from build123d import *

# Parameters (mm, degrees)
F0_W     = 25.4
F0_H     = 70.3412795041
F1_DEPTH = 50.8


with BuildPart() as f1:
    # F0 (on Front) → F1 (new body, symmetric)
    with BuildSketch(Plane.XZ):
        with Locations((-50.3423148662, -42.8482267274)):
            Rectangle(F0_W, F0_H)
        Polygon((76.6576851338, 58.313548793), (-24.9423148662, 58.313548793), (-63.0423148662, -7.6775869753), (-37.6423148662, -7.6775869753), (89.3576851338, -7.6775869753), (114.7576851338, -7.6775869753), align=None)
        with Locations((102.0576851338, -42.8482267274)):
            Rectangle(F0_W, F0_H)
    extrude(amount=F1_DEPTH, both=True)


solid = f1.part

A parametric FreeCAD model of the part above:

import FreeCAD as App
import Part
import Sketcher
from FreeCAD import Vector
Q = App.Units.Quantity

doc = App.newDocument("Part")
body = doc.addObject("PartDesign::Body", "Body")

# Sketch on XZ plane
sketch1 = body.newObject("Sketcher::SketchObject", "Sketch")
sketch1.AttachmentSupport = (doc.getObject("XZ_Plane"), [""])
sketch1.MapMode = "FlatFace"
sketch1.addGeometry(Part.LineSegment(Vector(-63.042315, -7.677587, 0), Vector(-63.042315, -78.018866, 0)), False)
sketch1.addGeometry(Part.LineSegment(Vector(-63.042315, -78.018866, 0), Vector(-37.642315, -78.018866, 0)), False)
sketch1.addGeometry(Part.LineSegment(Vector(-37.642315, -78.018866, 0), Vector(-37.642315, -7.677587, 0)), False)
sketch1.addGeometry(Part.LineSegment(Vector(-37.642315, -7.677587, 0), Vector(89.357685, -7.677587, 0)), False)
sketch1.addGeometry(Part.LineSegment(Vector(89.357685, -7.677587, 0), Vector(89.357685, -78.018866, 0)), False)
sketch1.addGeometry(Part.LineSegment(Vector(89.357685, -78.018866, 0), Vector(114.757685, -78.018866, 0)), False)
sketch1.addGeometry(Part.LineSegment(Vector(114.757685, -78.018866, 0), Vector(114.757685, -7.677587, 0)), False)
sketch1.addGeometry(Part.LineSegment(Vector(114.757685, -7.677587, 0), Vector(76.657685, 58.313549, 0)), False)
sketch1.addGeometry(Part.LineSegment(Vector(76.657685, 58.313549, 0), Vector(-24.942315, 58.313549, 0)), False)
sketch1.addGeometry(Part.LineSegment(Vector(-24.942315, 58.313549, 0), Vector(-63.042315, -7.677587, 0)), False)
sketch1.addConstraint(Sketcher.Constraint("Coincident", 0, 2, 1, 1))
sketch1.addConstraint(Sketcher.Constraint("Coincident", 1, 2, 2, 1))
sketch1.addConstraint(Sketcher.Constraint("Coincident", 2, 2, 3, 1))
sketch1.addConstraint(Sketcher.Constraint("Coincident", 3, 2, 4, 1))
sketch1.addConstraint(Sketcher.Constraint("Coincident", 4, 2, 5, 1))
sketch1.addConstraint(Sketcher.Constraint("Coincident", 5, 2, 6, 1))
sketch1.addConstraint(Sketcher.Constraint("Coincident", 6, 2, 7, 1))
sketch1.addConstraint(Sketcher.Constraint("Coincident", 7, 2, 8, 1))
sketch1.addConstraint(Sketcher.Constraint("Coincident", 8, 2, 9, 1))
sketch1.addConstraint(Sketcher.Constraint("Coincident", 9, 2, 0, 1))
sketch1.addConstraint(Sketcher.Constraint("Vertical", 0))
sketch1.addConstraint(Sketcher.Constraint("Horizontal", 1))
sketch1.addConstraint(Sketcher.Constraint("Vertical", 2))
sketch1.addConstraint(Sketcher.Constraint("Horizontal", 3))
sketch1.addConstraint(Sketcher.Constraint("Vertical", 4))
sketch1.addConstraint(Sketcher.Constraint("Horizontal", 5))
sketch1.addConstraint(Sketcher.Constraint("Vertical", 6))
sketch1.addConstraint(Sketcher.Constraint("Horizontal", 8))
sketch1.addConstraint(Sketcher.Constraint("Horizontal", 1, 2, 4, 2))
sketch1.addConstraint(Sketcher.Constraint("Horizontal", 3, 2, 6, 2))
sketch1.addConstraint(Sketcher.Constraint("Horizontal", 6, 2, 9, 2))
sketch1.addConstraint(Sketcher.Constraint("Equal", 1, 5))
sketch1.addConstraint(Sketcher.Constraint("Equal", 7, 9))
sketch1.addConstraint(Sketcher.Constraint("DistanceX", 1, 1, 1, 2, Q("1 in")))
sketch1.addConstraint(Sketcher.Constraint("DistanceX", 3, 1, 3, 2, Q("5 in")))
sketch1.addConstraint(Sketcher.Constraint("DistanceX", 8, 2, 8, 1, Q("4 in")))
sketch1.addConstraint(Sketcher.Constraint("Distance", 7, Q("3 in")))
sketch1.addConstraint(Sketcher.Constraint("DistanceY", 0, 2, 0, 1, Q("70.34128 mm")))
sketch1.addConstraint(Sketcher.Constraint("DistanceY", -1, 1, 7, 2, Q("58.313549 mm")))
sketch1.addConstraint(Sketcher.Constraint("DistanceX", 0, 2, -1, 1, Q("63.042315 mm")))
pad1 = body.newObject("PartDesign::Pad", "Pad")
pad1.Profile = sketch1
pad1.Length = Q("4 in")
pad1.Midplane = True

doc.recompute()
